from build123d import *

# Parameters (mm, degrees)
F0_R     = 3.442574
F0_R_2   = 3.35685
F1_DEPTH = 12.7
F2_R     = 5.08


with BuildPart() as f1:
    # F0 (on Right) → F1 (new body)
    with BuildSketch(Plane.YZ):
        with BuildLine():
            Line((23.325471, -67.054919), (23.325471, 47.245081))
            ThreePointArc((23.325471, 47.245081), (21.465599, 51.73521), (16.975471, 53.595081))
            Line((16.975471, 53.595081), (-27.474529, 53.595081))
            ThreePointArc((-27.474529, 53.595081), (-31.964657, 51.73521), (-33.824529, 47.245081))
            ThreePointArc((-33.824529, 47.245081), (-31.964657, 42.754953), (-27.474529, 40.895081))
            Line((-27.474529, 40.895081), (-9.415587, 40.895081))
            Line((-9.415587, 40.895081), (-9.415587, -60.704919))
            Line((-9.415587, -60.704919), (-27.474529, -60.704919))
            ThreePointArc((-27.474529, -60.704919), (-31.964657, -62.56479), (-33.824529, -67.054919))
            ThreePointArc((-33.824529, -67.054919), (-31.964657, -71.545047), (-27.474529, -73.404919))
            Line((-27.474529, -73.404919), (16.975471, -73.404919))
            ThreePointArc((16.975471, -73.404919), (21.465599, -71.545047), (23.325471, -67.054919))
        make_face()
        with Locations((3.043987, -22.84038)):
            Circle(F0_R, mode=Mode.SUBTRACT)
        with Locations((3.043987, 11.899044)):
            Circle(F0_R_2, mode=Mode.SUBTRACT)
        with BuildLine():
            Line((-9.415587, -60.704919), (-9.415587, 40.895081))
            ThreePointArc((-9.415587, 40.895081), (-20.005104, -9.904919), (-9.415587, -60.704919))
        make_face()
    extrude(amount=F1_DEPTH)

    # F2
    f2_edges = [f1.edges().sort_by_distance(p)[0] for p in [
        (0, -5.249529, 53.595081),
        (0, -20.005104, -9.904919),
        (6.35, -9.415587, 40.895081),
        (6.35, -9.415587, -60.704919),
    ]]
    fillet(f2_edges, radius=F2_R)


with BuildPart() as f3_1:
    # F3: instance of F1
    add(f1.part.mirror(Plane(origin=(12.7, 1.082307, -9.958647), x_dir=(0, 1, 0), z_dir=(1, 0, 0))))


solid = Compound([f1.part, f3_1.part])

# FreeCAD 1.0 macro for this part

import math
import FreeCAD as App
import Part
import Sketcher
Q = App.Units.Quantity


def edges_at(feature, points):
    """Names of the edges that pass closest to the given points."""
    edges = feature.Shape.Edges
    near = lambda p: min(range(len(edges)), key=lambda i: edges[i].distToShape(Part.Vertex(*p))[0])
    return sorted({f"Edge{near(p) + 1}" for p in points})

doc = App.newDocument("Part")
params = doc.addObject("Spreadsheet::Sheet", "Params")
for row, (alias, value) in enumerate([
    ("sketch1_radius", "0.2499999 in"),
    ("sketch1_height", "4.5 in"),
    ("pad1_length", "0.5 in"),
    ("fillet_radius", "0.2 in"),
], start=1):
    params.set(f"A{row}", alias)
    params.set(f"B{row}", "=" + value)
    params.setAlias(f"B{row}", alias)

body = doc.addObject("PartDesign::Body", "Body")

# Sketch on YZ plane
sketch1 = body.newObject("Sketcher::SketchObject", "Sketch")
sketch1.AttachmentSupport = (doc.getObject("YZ_Plane"), [""])
sketch1.MapMode = "FlatFace"
sketch1.addGeometry([
    Part.LineSegment(App.Vector(23.3, -67.1, 0), App.Vector(23.3, 47.2, 0)),  # 0
    Part.ArcOfCircle(Part.Circle(App.Vector(17, 47.2, 0), App.Vector(0, 0, 1), 6.3), math.radians(0), math.radians(90)),  # 1
    Part.LineSegment(App.Vector(17, 53.6, 0), App.Vector(-27.5, 53.6, 0)),  # 2
    Part.ArcOfCircle(Part.Circle(App.Vector(-27.5, 47.2, 0), App.Vector(0, 0, 1), 6.3), math.radians(90), math.radians(180)),  # 3
    Part.ArcOfCircle(Part.Circle(App.Vector(-27.5, 47.2, 0), App.Vector(0, 0, 1), 6.4), math.radians(-180), math.radians(-90)),  # 4
    Part.LineSegment(App.Vector(-27.5, 40.9, 0), App.Vector(-9.4, 40.9, 0)),  # 5
    Part.ArcOfCircle(Part.Circle(App.Vector(107.1, -9.9, 0), App.Vector(0, 0, 1), 127.1), math.radians(156), math.radians(204)),  # 6
    Part.LineSegment(App.Vector(-9.4, -60.7, 0), App.Vector(-27.5, -60.7, 0)),  # 7
    Part.ArcOfCircle(Part.Circle(App.Vector(-27.5, -67.1, 0), App.Vector(0, 0, 1), 6.3), math.radians(90), math.radians(180)),  # 8
    Part.ArcOfCircle(Part.Circle(App.Vector(-27.5, -67.1, 0), App.Vector(0, 0, 1), 6.4), math.radians(-180), math.radians(-90)),  # 9
    Part.LineSegment(App.Vector(-27.5, -73.4, 0), App.Vector(17, -73.4, 0)),  # 10
    Part.ArcOfCircle(Part.Circle(App.Vector(17, -67.1, 0), App.Vector(0, 0, 1), 6.4), math.radians(-90), math.radians(0)),  # 11
    Part.Circle(App.Vector(3, -22.8, 0), App.Vector(0, 0, 1), 3.4),  # 12
    Part.Circle(App.Vector(3, 11.9, 0), App.Vector(0, 0, 1), 3.4),  # 13
], False)
sketch1.addConstraint([
    Sketcher.Constraint("Tangent", 0, 2, 1, 1),
    Sketcher.Constraint("Tangent", 1, 2, 2, 1),
    Sketcher.Constraint("Tangent", 2, 2, 3, 1),
    Sketcher.Constraint("Tangent", 3, 2, 4, 1),
    Sketcher.Constraint("Tangent", 4, 2, 5, 1),
    Sketcher.Constraint("Coincident", 5, 2, 6, 1),
    Sketcher.Constraint("Coincident", 6, 2, 7, 1),
    Sketcher.Constraint("Tangent", 7, 2, 8, 1),
    Sketcher.Constraint("Tangent", 8, 2, 9, 1),
    Sketcher.Constraint("Tangent", 9, 2, 10, 1),
    Sketcher.Constraint("Tangent", 10, 2, 11, 1),
    Sketcher.Constraint("Tangent", 11, 2, 0, 1),
    Sketcher.Constraint("Vertical", 0),
    Sketcher.Constraint("Horizontal", 2),
    Sketcher.Constraint("Horizontal", 5),
    Sketcher.Constraint("Horizontal", 7),
    Sketcher.Constraint("Horizontal", 10),
    Sketcher.Constraint("Equal", 1, 3),
    Sketcher.Constraint("Equal", 3, 4),
    Sketcher.Constraint("Equal", 4, 8),
    Sketcher.Constraint("Equal", 8, 9),
    Sketcher.Constraint("Equal", 9, 11),
    Sketcher.Constraint("Horizontal", 0, 2, 3, 2),
    Sketcher.Constraint("Horizontal", 11, 3, 8, 2),
    Sketcher.Constraint("Vertical", 4, 3, 8, 3),
    Sketcher.Constraint("Vertical", 12, 3, 13, 3),
    Sketcher.Constraint("Vertical", 5, 2, 6, 2),
    Sketcher.Constraint("Radius", 1, Q("0.2499999 in")),
    Sketcher.Constraint("DistanceY", 0, 1, 0, 2, Q("4.5 in")),
    Sketcher.Constraint("DistanceX", 4, 3, 0, 2, Q("2 in")),
    Sketcher.Constraint("Diameter", 13, Q("6.7137 mm")),
    Sketcher.Constraint("Diameter", 12, Q("6.885148 mm")),
    Sketcher.Constraint("Radius", 6, Q("127.143564 mm")),
    Sketcher.Constraint("DistanceX", 5, 1, 5, 2, Q("18.058942 mm")),
    Sketcher.Constraint("DistanceX", 3, 3, -1, 1, Q("27.474531 mm")),
    Sketcher.Constraint("DistanceY", -1, 1, 4, 3, Q("47.245081 mm")),
    Sketcher.Constraint("DistanceY", 12, 3, -1, 1, Q("22.84038 mm")),
    Sketcher.Constraint("DistanceY", 13, 3, 1, 3, Q("35.346039 mm")),
    Sketcher.Constraint("DistanceX", -1, 1, 12, 3, Q("3.043987 mm")),
])
sketch1.setExpression("Constraints[27]", "Params.sketch1_radius")
sketch1.setExpression("Constraints[28]", "Params.sketch1_height")
pad1 = body.newObject("PartDesign::Pad", "Pad")
pad1.Profile = sketch1
pad1.setExpression("Length", "Params.pad1_length")
doc.recompute()

fillet = body.newObject("PartDesign::Fillet", "Fillet")
fillet.Base = (pad1, edges_at(pad1, [
    (0, -5.25, 53.595),
    (0, -20.005, -9.905),
    (6.35, -9.416, 40.895),
    (6.35, -9.416, -60.705),
]))
fillet.setExpression("Radius", "Params.fillet_radius")
body2 = doc.addObject("PartDesign::Body", "Body001")
doc.recompute()

mirroring = doc.addObject("Part::Mirroring", "Mirroring")
mirroring.Source = body
mirroring.Base = App.Vector(12.7, 1.082307, -9.958647)
mirroring.Normal = App.Vector(1, 0, 0)
body2.BaseFeature = mirroring
doc.recompute()
mirroring.Visibility = False

doc.recompute()
